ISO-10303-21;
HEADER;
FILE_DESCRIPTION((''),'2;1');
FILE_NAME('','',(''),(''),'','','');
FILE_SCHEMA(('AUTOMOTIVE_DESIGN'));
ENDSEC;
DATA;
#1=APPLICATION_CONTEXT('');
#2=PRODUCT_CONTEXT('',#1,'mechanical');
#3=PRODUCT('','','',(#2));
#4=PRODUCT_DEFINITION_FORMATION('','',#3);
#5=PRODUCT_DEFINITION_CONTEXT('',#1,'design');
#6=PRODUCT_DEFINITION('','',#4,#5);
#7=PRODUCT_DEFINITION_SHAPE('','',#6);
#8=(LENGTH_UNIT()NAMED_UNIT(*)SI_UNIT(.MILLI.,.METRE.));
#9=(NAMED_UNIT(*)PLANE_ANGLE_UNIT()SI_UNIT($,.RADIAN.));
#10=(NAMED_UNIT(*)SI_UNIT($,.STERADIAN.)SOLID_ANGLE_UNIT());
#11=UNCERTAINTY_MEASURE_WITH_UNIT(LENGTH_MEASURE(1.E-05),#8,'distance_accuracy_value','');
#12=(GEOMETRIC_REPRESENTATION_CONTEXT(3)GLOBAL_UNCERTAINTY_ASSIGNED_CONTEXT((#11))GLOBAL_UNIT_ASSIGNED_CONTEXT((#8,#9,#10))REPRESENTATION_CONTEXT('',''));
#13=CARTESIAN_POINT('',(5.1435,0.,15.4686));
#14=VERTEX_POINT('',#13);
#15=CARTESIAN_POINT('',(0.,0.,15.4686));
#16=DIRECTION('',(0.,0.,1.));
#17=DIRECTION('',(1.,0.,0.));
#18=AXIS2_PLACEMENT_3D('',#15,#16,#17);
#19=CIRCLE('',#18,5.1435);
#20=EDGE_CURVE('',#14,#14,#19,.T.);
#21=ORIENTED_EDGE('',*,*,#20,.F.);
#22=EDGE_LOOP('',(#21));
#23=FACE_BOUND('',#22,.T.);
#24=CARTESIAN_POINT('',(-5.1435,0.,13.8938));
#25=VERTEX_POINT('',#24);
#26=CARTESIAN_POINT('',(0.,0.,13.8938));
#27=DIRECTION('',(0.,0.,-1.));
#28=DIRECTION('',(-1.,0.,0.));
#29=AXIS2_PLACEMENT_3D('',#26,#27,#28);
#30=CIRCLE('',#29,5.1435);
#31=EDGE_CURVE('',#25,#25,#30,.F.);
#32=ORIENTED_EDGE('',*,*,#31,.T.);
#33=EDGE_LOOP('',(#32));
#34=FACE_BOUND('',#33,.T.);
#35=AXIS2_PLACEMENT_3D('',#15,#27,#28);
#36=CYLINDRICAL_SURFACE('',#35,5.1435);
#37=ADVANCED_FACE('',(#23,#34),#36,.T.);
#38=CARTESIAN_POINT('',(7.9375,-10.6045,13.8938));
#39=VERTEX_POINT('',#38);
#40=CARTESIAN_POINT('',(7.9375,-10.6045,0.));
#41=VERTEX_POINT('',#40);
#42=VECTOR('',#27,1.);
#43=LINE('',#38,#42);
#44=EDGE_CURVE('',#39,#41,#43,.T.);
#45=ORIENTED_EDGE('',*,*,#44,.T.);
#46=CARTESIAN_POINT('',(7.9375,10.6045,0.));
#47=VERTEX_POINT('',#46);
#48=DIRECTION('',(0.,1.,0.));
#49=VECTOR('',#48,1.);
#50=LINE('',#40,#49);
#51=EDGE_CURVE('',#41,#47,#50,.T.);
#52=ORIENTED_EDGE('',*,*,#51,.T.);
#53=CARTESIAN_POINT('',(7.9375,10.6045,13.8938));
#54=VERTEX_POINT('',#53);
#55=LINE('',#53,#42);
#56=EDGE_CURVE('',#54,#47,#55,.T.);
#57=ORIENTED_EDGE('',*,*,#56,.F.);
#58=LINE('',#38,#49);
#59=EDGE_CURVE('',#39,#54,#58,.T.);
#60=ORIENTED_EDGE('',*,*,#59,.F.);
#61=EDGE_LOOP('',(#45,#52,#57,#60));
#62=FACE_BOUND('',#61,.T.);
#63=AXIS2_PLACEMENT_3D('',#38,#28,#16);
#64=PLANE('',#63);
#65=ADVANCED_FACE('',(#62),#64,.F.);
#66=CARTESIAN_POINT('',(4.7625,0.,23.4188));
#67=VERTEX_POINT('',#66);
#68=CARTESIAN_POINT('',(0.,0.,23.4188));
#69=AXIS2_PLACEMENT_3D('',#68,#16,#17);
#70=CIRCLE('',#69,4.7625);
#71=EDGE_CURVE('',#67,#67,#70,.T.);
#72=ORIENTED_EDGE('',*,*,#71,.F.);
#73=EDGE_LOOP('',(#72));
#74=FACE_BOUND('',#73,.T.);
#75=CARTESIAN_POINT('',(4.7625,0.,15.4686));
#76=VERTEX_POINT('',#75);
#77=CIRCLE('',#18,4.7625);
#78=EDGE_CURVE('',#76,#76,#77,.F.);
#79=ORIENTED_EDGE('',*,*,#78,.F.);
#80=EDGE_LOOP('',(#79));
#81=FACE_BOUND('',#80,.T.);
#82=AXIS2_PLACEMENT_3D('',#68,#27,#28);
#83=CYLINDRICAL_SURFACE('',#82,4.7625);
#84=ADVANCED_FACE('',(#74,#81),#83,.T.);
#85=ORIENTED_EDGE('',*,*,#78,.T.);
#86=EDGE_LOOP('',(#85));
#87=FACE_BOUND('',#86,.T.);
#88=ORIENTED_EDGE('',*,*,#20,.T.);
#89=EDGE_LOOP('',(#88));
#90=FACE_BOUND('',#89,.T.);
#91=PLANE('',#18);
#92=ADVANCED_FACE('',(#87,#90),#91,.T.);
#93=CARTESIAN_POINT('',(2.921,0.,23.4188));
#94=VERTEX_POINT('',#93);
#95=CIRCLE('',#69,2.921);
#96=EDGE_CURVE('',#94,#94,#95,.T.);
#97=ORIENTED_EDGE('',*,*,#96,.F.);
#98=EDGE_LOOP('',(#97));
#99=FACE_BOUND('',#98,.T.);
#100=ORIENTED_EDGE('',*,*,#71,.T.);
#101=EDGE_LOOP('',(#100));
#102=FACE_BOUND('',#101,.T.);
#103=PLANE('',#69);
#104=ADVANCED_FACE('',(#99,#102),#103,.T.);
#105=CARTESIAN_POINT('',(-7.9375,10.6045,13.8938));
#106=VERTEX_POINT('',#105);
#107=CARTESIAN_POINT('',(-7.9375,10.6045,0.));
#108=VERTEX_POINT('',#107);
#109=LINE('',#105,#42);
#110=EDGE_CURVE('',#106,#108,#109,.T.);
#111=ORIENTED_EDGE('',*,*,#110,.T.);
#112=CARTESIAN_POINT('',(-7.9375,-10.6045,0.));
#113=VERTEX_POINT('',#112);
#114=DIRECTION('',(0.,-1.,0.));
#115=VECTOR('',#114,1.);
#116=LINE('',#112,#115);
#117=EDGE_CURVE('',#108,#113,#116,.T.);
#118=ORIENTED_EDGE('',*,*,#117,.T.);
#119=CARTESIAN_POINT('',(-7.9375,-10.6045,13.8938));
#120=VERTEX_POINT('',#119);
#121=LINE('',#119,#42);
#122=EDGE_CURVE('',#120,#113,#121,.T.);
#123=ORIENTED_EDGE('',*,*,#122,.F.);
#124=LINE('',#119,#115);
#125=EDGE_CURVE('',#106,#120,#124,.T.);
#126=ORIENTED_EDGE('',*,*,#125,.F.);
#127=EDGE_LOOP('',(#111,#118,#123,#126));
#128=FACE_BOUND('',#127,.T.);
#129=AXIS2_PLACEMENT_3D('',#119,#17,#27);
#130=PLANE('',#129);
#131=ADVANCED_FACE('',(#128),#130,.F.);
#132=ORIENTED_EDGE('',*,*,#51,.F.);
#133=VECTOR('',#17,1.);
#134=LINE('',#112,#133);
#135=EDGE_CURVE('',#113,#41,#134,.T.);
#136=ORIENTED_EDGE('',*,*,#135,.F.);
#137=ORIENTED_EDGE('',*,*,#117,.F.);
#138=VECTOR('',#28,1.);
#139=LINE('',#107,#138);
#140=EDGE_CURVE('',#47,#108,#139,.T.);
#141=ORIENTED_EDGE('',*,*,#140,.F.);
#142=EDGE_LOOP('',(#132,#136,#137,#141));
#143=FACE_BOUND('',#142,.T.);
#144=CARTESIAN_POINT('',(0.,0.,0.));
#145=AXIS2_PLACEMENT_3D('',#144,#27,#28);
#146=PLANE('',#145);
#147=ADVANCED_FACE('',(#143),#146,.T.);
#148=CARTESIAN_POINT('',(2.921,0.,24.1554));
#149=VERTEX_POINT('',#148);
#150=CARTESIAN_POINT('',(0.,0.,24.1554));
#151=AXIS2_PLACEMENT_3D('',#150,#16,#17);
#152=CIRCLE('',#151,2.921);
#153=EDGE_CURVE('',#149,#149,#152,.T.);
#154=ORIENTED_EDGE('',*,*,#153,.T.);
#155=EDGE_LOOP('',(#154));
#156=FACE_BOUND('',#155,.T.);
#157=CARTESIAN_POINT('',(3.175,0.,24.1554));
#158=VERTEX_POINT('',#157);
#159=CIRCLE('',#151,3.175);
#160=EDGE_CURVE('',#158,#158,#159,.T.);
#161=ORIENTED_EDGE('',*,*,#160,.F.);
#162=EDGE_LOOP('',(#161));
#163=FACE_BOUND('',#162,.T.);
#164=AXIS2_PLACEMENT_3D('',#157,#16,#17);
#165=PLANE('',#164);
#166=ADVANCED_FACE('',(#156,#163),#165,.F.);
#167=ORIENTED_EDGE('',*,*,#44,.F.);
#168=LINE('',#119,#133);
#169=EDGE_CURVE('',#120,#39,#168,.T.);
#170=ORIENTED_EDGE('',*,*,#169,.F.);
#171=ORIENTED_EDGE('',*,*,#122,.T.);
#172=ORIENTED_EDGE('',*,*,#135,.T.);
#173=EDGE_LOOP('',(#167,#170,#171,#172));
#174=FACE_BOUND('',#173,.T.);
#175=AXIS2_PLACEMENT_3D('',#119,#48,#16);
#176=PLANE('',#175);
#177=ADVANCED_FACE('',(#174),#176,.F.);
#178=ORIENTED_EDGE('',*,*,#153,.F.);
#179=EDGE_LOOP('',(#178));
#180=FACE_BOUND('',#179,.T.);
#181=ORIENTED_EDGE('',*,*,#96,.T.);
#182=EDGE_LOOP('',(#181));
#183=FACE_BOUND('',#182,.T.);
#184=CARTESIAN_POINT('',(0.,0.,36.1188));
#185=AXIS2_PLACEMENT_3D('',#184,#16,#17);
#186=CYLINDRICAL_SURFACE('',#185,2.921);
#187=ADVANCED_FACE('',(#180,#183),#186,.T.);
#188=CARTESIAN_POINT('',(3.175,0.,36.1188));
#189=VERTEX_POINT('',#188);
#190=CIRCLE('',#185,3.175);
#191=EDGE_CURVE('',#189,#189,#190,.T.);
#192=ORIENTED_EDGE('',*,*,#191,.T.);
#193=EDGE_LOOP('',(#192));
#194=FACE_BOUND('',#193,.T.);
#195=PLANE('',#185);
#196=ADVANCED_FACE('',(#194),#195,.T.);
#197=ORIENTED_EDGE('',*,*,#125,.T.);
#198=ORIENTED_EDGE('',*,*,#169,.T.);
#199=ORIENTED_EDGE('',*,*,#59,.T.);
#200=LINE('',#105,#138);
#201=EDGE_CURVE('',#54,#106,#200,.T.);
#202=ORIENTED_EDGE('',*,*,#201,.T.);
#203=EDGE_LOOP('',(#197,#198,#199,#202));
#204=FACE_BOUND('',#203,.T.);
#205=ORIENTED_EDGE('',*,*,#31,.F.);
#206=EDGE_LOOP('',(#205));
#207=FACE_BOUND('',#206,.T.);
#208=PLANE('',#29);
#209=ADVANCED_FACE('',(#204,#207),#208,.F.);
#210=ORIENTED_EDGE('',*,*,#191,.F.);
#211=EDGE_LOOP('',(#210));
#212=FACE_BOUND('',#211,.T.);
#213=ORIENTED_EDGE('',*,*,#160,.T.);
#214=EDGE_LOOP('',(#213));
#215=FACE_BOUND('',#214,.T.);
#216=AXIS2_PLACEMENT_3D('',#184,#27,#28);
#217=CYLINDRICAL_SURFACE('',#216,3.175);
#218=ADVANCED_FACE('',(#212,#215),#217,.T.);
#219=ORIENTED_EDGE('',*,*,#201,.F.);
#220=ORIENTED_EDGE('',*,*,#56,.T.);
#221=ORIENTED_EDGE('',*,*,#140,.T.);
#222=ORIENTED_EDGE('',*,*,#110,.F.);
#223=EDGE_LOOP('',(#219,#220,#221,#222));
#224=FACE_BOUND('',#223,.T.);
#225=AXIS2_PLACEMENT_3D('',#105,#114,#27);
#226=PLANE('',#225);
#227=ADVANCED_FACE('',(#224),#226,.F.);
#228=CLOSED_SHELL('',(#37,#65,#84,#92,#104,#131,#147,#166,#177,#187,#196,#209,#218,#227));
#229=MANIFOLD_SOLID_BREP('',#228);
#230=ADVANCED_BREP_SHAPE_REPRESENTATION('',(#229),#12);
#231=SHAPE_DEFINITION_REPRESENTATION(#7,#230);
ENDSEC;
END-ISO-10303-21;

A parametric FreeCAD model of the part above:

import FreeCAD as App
import Part
import Sketcher
from FreeCAD import Vector
Q = App.Units.Quantity


def add_polygon(sketch, points):
    """Adds a closed chain of lines whose ends are joined by coincident constraints."""
    first, n = sketch.GeometryCount, len(points)
    for a, b in zip(points, points[1:] + points[:1]):
        sketch.addGeometry(Part.LineSegment(App.Vector(*a, 0), App.Vector(*b, 0)), False)
    for i in range(n):
        sketch.addConstraint(Sketcher.Constraint("Coincident", first + i, 2, first + (i + 1) % n, 1))

doc = App.newDocument("Part")
params = doc.addObject("Spreadsheet::Sheet", "Params")
for row, (alias, value) in enumerate([
    ("sketch1_width", "0.625 in"),
    ("sketch1_height", "0.835 in"),
    ("pad1_length", "0.547 in"),
    ("sketch2_diameter", "0.405 in"),
    ("pad2_length", "0.062 in"),
    ("sketch3_diameter", "0.375 in"),
    ("pad3_length", "0.375 in"),
    ("sketch4_diameter", "0.25 in"),
    ("pad4_length", "0.875 in"),
    ("sketch5_width", "0.01 in"),
    ("sketch5_height", "0.029 in"),
    ("groove_angle", "360 deg"),
], start=1):
    params.set(f"A{row}", alias)
    params.set(f"B{row}", "=" + value)
    params.setAlias(f"B{row}", alias)

body = doc.addObject("PartDesign::Body", "Body")

# Sketch on XY plane
sketch1 = body.newObject("Sketcher::SketchObject", "Sketch")
sketch1.AttachmentSupport = (doc.getObject("XY_Plane"), [""])
sketch1.MapMode = "FlatFace"
add_polygon(sketch1, [(-8, 11), (-8, -11), (8, -11), (8, 11)])  # lines 0-3
sketch1.addConstraint([
    Sketcher.Constraint("Vertical", 0),
    Sketcher.Constraint("Horizontal", 1),
    Sketcher.Constraint("Vertical", 2),
    Sketcher.Constraint("Horizontal", 3),
    Sketcher.Constraint("Symmetric", 0, 2, 2, 2, -1, 1),
    Sketcher.Constraint("DistanceX", 1, 1, 1, 2, Q("0.625 in")),
    Sketcher.Constraint("DistanceY", 0, 2, 0, 1, Q("0.835 in")),
])
sketch1.setExpression("Constraints[9]", "Params.sketch1_width")
sketch1.setExpression("Constraints[10]", "Params.sketch1_height")
pad1 = body.newObject("PartDesign::Pad", "Pad")
pad1.Profile = sketch1
pad1.setExpression("Length", "Params.pad1_length")

# Sketch on XY plane
sketch2 = body.newObject("Sketcher::SketchObject", "Sketch001")
sketch2.AttachmentSupport = (doc.getObject("XY_Plane"), [""])
sketch2.MapMode = "FlatFace"
sketch2.AttachmentOffset = App.Placement(Vector(0, 0, 0.547 * 25.4), App.Rotation())
sketch2.addGeometry(Part.Circle(Vector(0, 0, 0), Vector(0, 0, 1), 5), False)
sketch2.addConstraint([
    Sketcher.Constraint("Coincident", 0, 3, -1, 1),
    Sketcher.Constraint("Diameter", 0, Q("0.405 in")),
])
sketch2.setExpression("Constraints[1]", "Params.sketch2_diameter")
pad2 = body.newObject("PartDesign::Pad", "Pad001")
pad2.Profile = sketch2
pad2.setExpression("Length", "Params.pad2_length")

# Sketch on XY plane
sketch3 = body.newObject("Sketcher::SketchObject", "Sketch002")
sketch3.AttachmentSupport = (doc.getObject("XY_Plane"), [""])
sketch3.MapMode = "FlatFace"
sketch3.AttachmentOffset = App.Placement(Vector(0, 0, 0.547 * 25.4), App.Rotation())
sketch3.addGeometry(Part.Circle(Vector(0, 0, 0), Vector(0, 0, 1), 4.8), False)
sketch3.addConstraint([
    Sketcher.Constraint("Coincident", 0, 3, -1, 1),
    Sketcher.Constraint("Diameter", 0, Q("0.375 in")),
])
sketch3.setExpression("Constraints[1]", "Params.sketch3_diameter")
pad3 = body.newObject("PartDesign::Pad", "Pad002")
pad3.Profile = sketch3
pad3.setExpression("Length", "Params.pad3_length")

# Sketch on XY plane
sketch4 = body.newObject("Sketcher::SketchObject", "Sketch003")
sketch4.AttachmentSupport = (doc.getObject("XY_Plane"), [""])
sketch4.MapMode = "FlatFace"
sketch4.AttachmentOffset = App.Placement(Vector(0, 0, 0.547 * 25.4), App.Rotation())
sketch4.addGeometry(Part.Circle(Vector(0, 0, 0), Vector(0, 0, 1), 3.2), False)
sketch4.addConstraint([
    Sketcher.Constraint("Coincident", 0, 3, -1, 1),
    Sketcher.Constraint("Diameter", 0, Q("0.25 in")),
])
sketch4.setExpression("Constraints[1]", "Params.sketch4_diameter")
pad4 = body.newObject("PartDesign::Pad", "Pad003")
pad4.Profile = sketch4
pad4.setExpression("Length", "Params.pad4_length")

# Sketch on XZ plane
sketch5 = body.newObject("Sketcher::SketchObject", "Sketch004")
sketch5.AttachmentSupport = (doc.getObject("XZ_Plane"), [""])
sketch5.MapMode = "FlatFace"
add_polygon(sketch5, [(2.92, 23.42), (2.92, 24.16), (3.17, 24.16), (3.17, 23.42)])  # lines 0-3
sketch5.addConstraint([
    Sketcher.Constraint("Vertical", 0),
    Sketcher.Constraint("Horizontal", 1),
    Sketcher.Constraint("Vertical", 2),
    Sketcher.Constraint("Horizontal", 3),
    Sketcher.Constraint("DistanceX", 1, 1, 1, 2, Q("0.01 in")),
    Sketcher.Constraint("DistanceY", 0, 1, 0, 2, Q("0.029 in")),
    Sketcher.Constraint("DistanceX", -1, 1, 0, 2, Q("0.115 in")),
    Sketcher.Constraint("DistanceY", -1, 1, 0, 2, Q("0.951 in")),
])
sketch5.setExpression("Constraints[8]", "Params.sketch5_width")
sketch5.setExpression("Constraints[9]", "Params.sketch5_height")
groove = body.newObject("PartDesign::Groove", "Groove")
groove.Profile = sketch5
groove.ReferenceAxis = (sketch5, ["V_Axis"])
groove.setExpression("Angle", "Params.groove_angle")

doc.recompute()
